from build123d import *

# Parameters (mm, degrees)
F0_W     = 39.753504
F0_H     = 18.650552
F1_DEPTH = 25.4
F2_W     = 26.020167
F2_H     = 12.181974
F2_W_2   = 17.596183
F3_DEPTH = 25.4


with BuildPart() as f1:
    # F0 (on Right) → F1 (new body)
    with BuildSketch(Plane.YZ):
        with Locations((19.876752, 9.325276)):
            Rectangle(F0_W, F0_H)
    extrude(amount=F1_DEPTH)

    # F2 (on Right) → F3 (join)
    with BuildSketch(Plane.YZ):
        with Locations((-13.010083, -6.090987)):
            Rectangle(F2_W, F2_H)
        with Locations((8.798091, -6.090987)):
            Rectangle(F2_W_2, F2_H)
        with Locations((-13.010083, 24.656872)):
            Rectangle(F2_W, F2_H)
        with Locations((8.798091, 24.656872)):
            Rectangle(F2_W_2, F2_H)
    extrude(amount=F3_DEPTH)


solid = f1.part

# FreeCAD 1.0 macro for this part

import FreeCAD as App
import Part
import Sketcher
Q = App.Units.Quantity


def add_polygon(sketch, points):
    """Adds a closed chain of lines whose ends are joined by coincident constraints."""
    first, n = sketch.GeometryCount, len(points)
    for a, b in zip(points, points[1:] + points[:1]):
        sketch.addGeometry(Part.LineSegment(App.Vector(*a, 0), App.Vector(*b, 0)), False)
    for i in range(n):
        sketch.addConstraint(Sketcher.Constraint("Coincident", first + i, 2, first + (i + 1) % n, 1))

doc = App.newDocument("Part")
body = doc.addObject("PartDesign::Body", "Body")

# Sketch on YZ plane
sketch1 = body.newObject("Sketcher::SketchObject", "Sketch")
sketch1.AttachmentSupport = (doc.getObject("YZ_Plane"), [""])
sketch1.MapMode = "FlatFace"
add_polygon(sketch1, [(0, 18.650552), (0, 0), (39.753504, 0), (39.753504, 18.650552)])  # lines 0-3
sketch1.addConstraint([
    Sketcher.Constraint("Vertical", 0),
    Sketcher.Constraint("Horizontal", 1),
    Sketcher.Constraint("Vertical", 2),
    Sketcher.Constraint("Horizontal", 3),
    Sketcher.Constraint("Coincident", 0, 2, -1, 1),
    Sketcher.Constraint("DistanceX", 1, 1, 1, 2, 39.753504),
    Sketcher.Constraint("DistanceY", 0, 2, 0, 1, 18.650552),
])
pad1 = body.newObject("PartDesign::Pad", "Pad")
pad1.Profile = sketch1
pad1.Length = Q("1 in")

# Sketch on YZ plane
sketch2 = body.newObject("Sketcher::SketchObject", "Sketch001")
sketch2.AttachmentSupport = (doc.getObject("YZ_Plane"), [""])
sketch2.MapMode = "FlatFace"
add_polygon(sketch2, [(-26.020166, 0), (-26.020166, -12.181974), (17.596183, -12.181974), (17.596183, 0)])  # lines 0-3
add_polygon(sketch2, [(-26.020166, 30.747859), (-26.020166, 18.565885), (17.596183, 18.565885), (17.596183, 30.747859)])  # lines 4-7
sketch2.addConstraint([
    Sketcher.Constraint("Vertical", 0),
    Sketcher.Constraint("Horizontal", 1),
    Sketcher.Constraint("Vertical", 2),
    Sketcher.Constraint("Horizontal", 3),
    Sketcher.Constraint("Vertical", 4),
    Sketcher.Constraint("Horizontal", 5),
    Sketcher.Constraint("Vertical", 6),
    Sketcher.Constraint("Horizontal", 7),
    Sketcher.Constraint("PointOnObject", 2, 2, -1),
    Sketcher.Constraint("Vertical", 3, 2, 4, 2),
    Sketcher.Constraint("Vertical", 2, 2, 5, 2),
    Sketcher.Constraint("Equal", 2, 4),
    Sketcher.Constraint("DistanceX", 1, 1, 1, 2, 43.616349),
    Sketcher.Constraint("DistanceY", 0, 2, 0, 1, 12.181974),
    Sketcher.Constraint("DistanceY", -1, 1, 6, 2, 30.747859),
    Sketcher.Constraint("DistanceX", 0, 2, -1, 1, 26.020166),
])
pad2 = body.newObject("PartDesign::Pad", "Pad001")
pad2.Profile = sketch2
pad2.Length = Q("1 in")

doc.recompute()
